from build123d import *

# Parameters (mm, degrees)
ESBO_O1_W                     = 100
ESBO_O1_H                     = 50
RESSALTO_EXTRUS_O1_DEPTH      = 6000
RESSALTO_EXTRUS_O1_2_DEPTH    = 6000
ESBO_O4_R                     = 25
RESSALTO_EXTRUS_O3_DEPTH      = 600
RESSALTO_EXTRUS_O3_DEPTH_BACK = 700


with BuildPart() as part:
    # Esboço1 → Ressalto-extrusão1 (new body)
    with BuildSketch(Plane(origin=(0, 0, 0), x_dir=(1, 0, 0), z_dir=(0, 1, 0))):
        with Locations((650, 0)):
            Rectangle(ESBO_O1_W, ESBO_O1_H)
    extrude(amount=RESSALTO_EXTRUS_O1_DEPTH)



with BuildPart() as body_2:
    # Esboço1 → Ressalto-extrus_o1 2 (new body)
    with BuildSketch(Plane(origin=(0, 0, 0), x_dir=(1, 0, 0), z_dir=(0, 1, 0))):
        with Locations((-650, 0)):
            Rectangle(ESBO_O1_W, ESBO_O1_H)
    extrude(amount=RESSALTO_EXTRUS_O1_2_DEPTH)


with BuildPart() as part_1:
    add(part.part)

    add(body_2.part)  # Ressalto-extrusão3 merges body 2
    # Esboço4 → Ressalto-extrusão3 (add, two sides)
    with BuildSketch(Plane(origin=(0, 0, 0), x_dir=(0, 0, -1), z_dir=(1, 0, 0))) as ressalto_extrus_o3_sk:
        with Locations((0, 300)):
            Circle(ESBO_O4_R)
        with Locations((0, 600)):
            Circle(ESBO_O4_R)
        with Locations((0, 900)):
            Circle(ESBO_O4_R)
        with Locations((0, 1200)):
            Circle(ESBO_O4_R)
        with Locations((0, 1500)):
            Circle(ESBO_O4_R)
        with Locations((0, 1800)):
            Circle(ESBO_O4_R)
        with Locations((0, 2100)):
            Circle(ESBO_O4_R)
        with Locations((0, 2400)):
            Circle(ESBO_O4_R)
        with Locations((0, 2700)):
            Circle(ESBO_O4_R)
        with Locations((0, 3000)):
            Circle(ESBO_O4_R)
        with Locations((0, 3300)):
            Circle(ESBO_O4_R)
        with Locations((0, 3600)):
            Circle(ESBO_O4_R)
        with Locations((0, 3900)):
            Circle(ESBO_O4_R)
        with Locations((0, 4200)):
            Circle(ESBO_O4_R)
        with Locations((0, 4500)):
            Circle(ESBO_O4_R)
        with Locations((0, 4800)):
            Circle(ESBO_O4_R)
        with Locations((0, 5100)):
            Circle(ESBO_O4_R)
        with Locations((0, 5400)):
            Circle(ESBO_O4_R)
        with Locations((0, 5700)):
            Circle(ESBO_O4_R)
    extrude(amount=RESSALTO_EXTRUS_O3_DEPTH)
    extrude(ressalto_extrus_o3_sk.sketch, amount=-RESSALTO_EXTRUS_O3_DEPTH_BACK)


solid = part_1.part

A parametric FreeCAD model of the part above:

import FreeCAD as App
import Part
import Sketcher
Q = App.Units.Quantity


def add_polygon(sketch, points):
    """Adds a closed chain of lines whose ends are joined by coincident constraints."""
    first, n = sketch.GeometryCount, len(points)
    for a, b in zip(points, points[1:] + points[:1]):
        sketch.addGeometry(Part.LineSegment(App.Vector(*a, 0), App.Vector(*b, 0)), False)
    for i in range(n):
        sketch.addConstraint(Sketcher.Constraint("Coincident", first + i, 2, first + (i + 1) % n, 1))

doc = App.newDocument("Part")
body = doc.addObject("PartDesign::Body", "Body")

sketch1 = body.newObject("Sketcher::SketchObject", "Sketch")
sketch1.AttachmentSupport = (doc.getObject("XZ_Plane"), [""])
sketch1.MapMode = "FlatFace"
add_polygon(sketch1, [(600, -25), (600, 25), (700, 25), (700, -25)])
sketch1.addConstraint([
    Sketcher.Constraint("Vertical", 0),
    Sketcher.Constraint("Horizontal", 1),
    Sketcher.Constraint("Vertical", 2),
    Sketcher.Constraint("Horizontal", 3),
    Sketcher.Constraint("DistanceX", 1, 1, 1, 2, Q("100 mm")),
    Sketcher.Constraint("DistanceY", 0, 1, 0, 2, Q("50 mm")),
    Sketcher.Constraint("DistanceX", -1, 1, 0, 2, Q("600 mm")),
    Sketcher.Constraint("DistanceY", -1, 1, 0, 2, Q("25 mm")),
])
pad1 = body.newObject("PartDesign::Pad", "Pad")
pad1.Profile = sketch1
pad1.Length = 6000
pad1.Reversed = True
body2 = doc.addObject("PartDesign::Body", "Body001")

sketch2 = body2.newObject("Sketcher::SketchObject", "Sketch001")
sketch2.AttachmentSupport = (doc.getObject("XZ_Plane001"), [""])
sketch2.MapMode = "FlatFace"
add_polygon(sketch2, [(-700, -25), (-700, 25), (-600, 25), (-600, -25)])
sketch2.addConstraint([
    Sketcher.Constraint("Vertical", 0),
    Sketcher.Constraint("Horizontal", 1),
    Sketcher.Constraint("Vertical", 2),
    Sketcher.Constraint("Horizontal", 3),
    Sketcher.Constraint("DistanceX", 1, 1, 1, 2, Q("100 mm")),
    Sketcher.Constraint("DistanceY", 0, 1, 0, 2, Q("50 mm")),
    Sketcher.Constraint("DistanceX", 0, 2, -1, 1, Q("700 mm")),
    Sketcher.Constraint("DistanceY", -1, 1, 0, 2, Q("25 mm")),
])
pad2 = body2.newObject("PartDesign::Pad", "Pad001")
pad2.Profile = sketch2
pad2.Length = 6000
pad2.Reversed = True
body.AllowCompound = True
doc.recompute()

boolean = body.newObject("PartDesign::Boolean", "Boolean")
boolean.Type = "Fuse"
boolean.addObjects([body2])

sketch3 = body.newObject("Sketcher::SketchObject", "Sketch002")
sketch3.AttachmentSupport = (doc.getObject("YZ_Plane"), [""])
sketch3.MapMode = "FlatFace"
sketch3.addGeometry([
    Part.Circle(App.Vector(300, 0, 0), App.Vector(0, 0, 1), 25),
    Part.Circle(App.Vector(600, 0, 0), App.Vector(0, 0, 1), 25),
    Part.Circle(App.Vector(900, 0, 0), App.Vector(0, 0, 1), 25),
    Part.Circle(App.Vector(1200, 0, 0), App.Vector(0, 0, 1), 25),
    Part.Circle(App.Vector(1500, 0, 0), App.Vector(0, 0, 1), 25),
    Part.Circle(App.Vector(1800, 0, 0), App.Vector(0, 0, 1), 25),
    Part.Circle(App.Vector(2100, 0, 0), App.Vector(0, 0, 1), 25),
    Part.Circle(App.Vector(2400, 0, 0), App.Vector(0, 0, 1), 25),
    Part.Circle(App.Vector(2700, 0, 0), App.Vector(0, 0, 1), 25),
    Part.Circle(App.Vector(3000, 0, 0), App.Vector(0, 0, 1), 25),
    Part.Circle(App.Vector(3300, 0, 0), App.Vector(0, 0, 1), 25),
    Part.Circle(App.Vector(3600, 0, 0), App.Vector(0, 0, 1), 25),
    Part.Circle(App.Vector(3900, 0, 0), App.Vector(0, 0, 1), 25),
    Part.Circle(App.Vector(4200, 0, 0), App.Vector(0, 0, 1), 25),
    Part.Circle(App.Vector(4500, 0, 0), App.Vector(0, 0, 1), 25),
    Part.Circle(App.Vector(4800, 0, 0), App.Vector(0, 0, 1), 25),
    Part.Circle(App.Vector(5100, 0, 0), App.Vector(0, 0, 1), 25),
    Part.Circle(App.Vector(5400, 0, 0), App.Vector(0, 0, 1), 25),
    Part.Circle(App.Vector(5700, 0, 0), App.Vector(0, 0, 1), 25),
], False)
sketch3.addConstraint([
    Sketcher.Constraint("Equal", 0, 1),
    Sketcher.Constraint("Equal", 1, 2),
    Sketcher.Constraint("Equal", 2, 3),
    Sketcher.Constraint("Equal", 3, 4),
    Sketcher.Constraint("Equal", 4, 5),
    Sketcher.Constraint("Equal", 5, 6),
    Sketcher.Constraint("Equal", 6, 7),
    Sketcher.Constraint("Equal", 7, 8),
    Sketcher.Constraint("Equal", 8, 9),
    Sketcher.Constraint("Equal", 9, 10),
    Sketcher.Constraint("Equal", 10, 11),
    Sketcher.Constraint("Equal", 11, 12),
    Sketcher.Constraint("Equal", 12, 13),
    Sketcher.Constraint("Equal", 13, 14),
    Sketcher.Constraint("Equal", 14, 15),
    Sketcher.Constraint("Equal", 15, 16),
    Sketcher.Constraint("Equal", 16, 17),
    Sketcher.Constraint("Equal", 17, 18),
    Sketcher.Constraint("PointOnObject", 0, 3, -1),
    Sketcher.Constraint("PointOnObject", 1, 3, -1),
    Sketcher.Constraint("PointOnObject", 2, 3, -1),
    Sketcher.Constraint("PointOnObject", 3, 3, -1),
    Sketcher.Constraint("PointOnObject", 4, 3, -1),
    Sketcher.Constraint("PointOnObject", 5, 3, -1),
    Sketcher.Constraint("PointOnObject", 6, 3, -1),
    Sketcher.Constraint("PointOnObject", 7, 3, -1),
    Sketcher.Constraint("PointOnObject", 8, 3, -1),
    Sketcher.Constraint("PointOnObject", 9, 3, -1),
    Sketcher.Constraint("PointOnObject", 10, 3, -1),
    Sketcher.Constraint("PointOnObject", 11, 3, -1),
    Sketcher.Constraint("PointOnObject", 12, 3, -1),
    Sketcher.Constraint("PointOnObject", 13, 3, -1),
    Sketcher.Constraint("PointOnObject", 14, 3, -1),
    Sketcher.Constraint("PointOnObject", 15, 3, -1),
    Sketcher.Constraint("PointOnObject", 16, 3, -1),
    Sketcher.Constraint("PointOnObject", 17, 3, -1),
    Sketcher.Constraint("PointOnObject", 18, 3, -1),
    Sketcher.Constraint("Diameter", 0, Q("50 mm")),
    Sketcher.Constraint("DistanceX", -1, 1, 0, 3, Q("300 mm")),
    Sketcher.Constraint("DistanceX", -1, 1, 1, 3, Q("600 mm")),
    Sketcher.Constraint("DistanceX", -1, 1, 2, 3, Q("900 mm")),
    Sketcher.Constraint("DistanceX", -1, 1, 3, 3, Q("1200 mm")),
    Sketcher.Constraint("DistanceX", -1, 1, 4, 3, Q("1500 mm")),
    Sketcher.Constraint("DistanceX", -1, 1, 5, 3, Q("1800 mm")),
    Sketcher.Constraint("DistanceX", -1, 1, 6, 3, Q("2100 mm")),
    Sketcher.Constraint("DistanceX", -1, 1, 7, 3, Q("2400 mm")),
    Sketcher.Constraint("DistanceX", -1, 1, 8, 3, Q("2700 mm")),
    Sketcher.Constraint("DistanceX", -1, 1, 9, 3, Q("3000 mm")),
    Sketcher.Constraint("DistanceX", -1, 1, 10, 3, Q("3300 mm")),
    Sketcher.Constraint("DistanceX", -1, 1, 11, 3, Q("3600 mm")),
    Sketcher.Constraint("DistanceX", -1, 1, 12, 3, Q("3900 mm")),
    Sketcher.Constraint("DistanceX", -1, 1, 13, 3, Q("4200 mm")),
    Sketcher.Constraint("DistanceX", -1, 1, 14, 3, Q("4500 mm")),
    Sketcher.Constraint("DistanceX", -1, 1, 15, 3, Q("4800 mm")),
    Sketcher.Constraint("DistanceX", -1, 1, 16, 3, Q("5100 mm")),
    Sketcher.Constraint("DistanceX", -1, 1, 17, 3, Q("5400 mm")),
    Sketcher.Constraint("DistanceX", -1, 1, 18, 3, Q("5700 mm")),
])
pad3 = body.newObject("PartDesign::Pad", "Pad002")
pad3.Profile = sketch3
pad3.Type = "TwoLengths"
pad3.Length = 600
pad3.Length2 = 700

doc.recompute()
